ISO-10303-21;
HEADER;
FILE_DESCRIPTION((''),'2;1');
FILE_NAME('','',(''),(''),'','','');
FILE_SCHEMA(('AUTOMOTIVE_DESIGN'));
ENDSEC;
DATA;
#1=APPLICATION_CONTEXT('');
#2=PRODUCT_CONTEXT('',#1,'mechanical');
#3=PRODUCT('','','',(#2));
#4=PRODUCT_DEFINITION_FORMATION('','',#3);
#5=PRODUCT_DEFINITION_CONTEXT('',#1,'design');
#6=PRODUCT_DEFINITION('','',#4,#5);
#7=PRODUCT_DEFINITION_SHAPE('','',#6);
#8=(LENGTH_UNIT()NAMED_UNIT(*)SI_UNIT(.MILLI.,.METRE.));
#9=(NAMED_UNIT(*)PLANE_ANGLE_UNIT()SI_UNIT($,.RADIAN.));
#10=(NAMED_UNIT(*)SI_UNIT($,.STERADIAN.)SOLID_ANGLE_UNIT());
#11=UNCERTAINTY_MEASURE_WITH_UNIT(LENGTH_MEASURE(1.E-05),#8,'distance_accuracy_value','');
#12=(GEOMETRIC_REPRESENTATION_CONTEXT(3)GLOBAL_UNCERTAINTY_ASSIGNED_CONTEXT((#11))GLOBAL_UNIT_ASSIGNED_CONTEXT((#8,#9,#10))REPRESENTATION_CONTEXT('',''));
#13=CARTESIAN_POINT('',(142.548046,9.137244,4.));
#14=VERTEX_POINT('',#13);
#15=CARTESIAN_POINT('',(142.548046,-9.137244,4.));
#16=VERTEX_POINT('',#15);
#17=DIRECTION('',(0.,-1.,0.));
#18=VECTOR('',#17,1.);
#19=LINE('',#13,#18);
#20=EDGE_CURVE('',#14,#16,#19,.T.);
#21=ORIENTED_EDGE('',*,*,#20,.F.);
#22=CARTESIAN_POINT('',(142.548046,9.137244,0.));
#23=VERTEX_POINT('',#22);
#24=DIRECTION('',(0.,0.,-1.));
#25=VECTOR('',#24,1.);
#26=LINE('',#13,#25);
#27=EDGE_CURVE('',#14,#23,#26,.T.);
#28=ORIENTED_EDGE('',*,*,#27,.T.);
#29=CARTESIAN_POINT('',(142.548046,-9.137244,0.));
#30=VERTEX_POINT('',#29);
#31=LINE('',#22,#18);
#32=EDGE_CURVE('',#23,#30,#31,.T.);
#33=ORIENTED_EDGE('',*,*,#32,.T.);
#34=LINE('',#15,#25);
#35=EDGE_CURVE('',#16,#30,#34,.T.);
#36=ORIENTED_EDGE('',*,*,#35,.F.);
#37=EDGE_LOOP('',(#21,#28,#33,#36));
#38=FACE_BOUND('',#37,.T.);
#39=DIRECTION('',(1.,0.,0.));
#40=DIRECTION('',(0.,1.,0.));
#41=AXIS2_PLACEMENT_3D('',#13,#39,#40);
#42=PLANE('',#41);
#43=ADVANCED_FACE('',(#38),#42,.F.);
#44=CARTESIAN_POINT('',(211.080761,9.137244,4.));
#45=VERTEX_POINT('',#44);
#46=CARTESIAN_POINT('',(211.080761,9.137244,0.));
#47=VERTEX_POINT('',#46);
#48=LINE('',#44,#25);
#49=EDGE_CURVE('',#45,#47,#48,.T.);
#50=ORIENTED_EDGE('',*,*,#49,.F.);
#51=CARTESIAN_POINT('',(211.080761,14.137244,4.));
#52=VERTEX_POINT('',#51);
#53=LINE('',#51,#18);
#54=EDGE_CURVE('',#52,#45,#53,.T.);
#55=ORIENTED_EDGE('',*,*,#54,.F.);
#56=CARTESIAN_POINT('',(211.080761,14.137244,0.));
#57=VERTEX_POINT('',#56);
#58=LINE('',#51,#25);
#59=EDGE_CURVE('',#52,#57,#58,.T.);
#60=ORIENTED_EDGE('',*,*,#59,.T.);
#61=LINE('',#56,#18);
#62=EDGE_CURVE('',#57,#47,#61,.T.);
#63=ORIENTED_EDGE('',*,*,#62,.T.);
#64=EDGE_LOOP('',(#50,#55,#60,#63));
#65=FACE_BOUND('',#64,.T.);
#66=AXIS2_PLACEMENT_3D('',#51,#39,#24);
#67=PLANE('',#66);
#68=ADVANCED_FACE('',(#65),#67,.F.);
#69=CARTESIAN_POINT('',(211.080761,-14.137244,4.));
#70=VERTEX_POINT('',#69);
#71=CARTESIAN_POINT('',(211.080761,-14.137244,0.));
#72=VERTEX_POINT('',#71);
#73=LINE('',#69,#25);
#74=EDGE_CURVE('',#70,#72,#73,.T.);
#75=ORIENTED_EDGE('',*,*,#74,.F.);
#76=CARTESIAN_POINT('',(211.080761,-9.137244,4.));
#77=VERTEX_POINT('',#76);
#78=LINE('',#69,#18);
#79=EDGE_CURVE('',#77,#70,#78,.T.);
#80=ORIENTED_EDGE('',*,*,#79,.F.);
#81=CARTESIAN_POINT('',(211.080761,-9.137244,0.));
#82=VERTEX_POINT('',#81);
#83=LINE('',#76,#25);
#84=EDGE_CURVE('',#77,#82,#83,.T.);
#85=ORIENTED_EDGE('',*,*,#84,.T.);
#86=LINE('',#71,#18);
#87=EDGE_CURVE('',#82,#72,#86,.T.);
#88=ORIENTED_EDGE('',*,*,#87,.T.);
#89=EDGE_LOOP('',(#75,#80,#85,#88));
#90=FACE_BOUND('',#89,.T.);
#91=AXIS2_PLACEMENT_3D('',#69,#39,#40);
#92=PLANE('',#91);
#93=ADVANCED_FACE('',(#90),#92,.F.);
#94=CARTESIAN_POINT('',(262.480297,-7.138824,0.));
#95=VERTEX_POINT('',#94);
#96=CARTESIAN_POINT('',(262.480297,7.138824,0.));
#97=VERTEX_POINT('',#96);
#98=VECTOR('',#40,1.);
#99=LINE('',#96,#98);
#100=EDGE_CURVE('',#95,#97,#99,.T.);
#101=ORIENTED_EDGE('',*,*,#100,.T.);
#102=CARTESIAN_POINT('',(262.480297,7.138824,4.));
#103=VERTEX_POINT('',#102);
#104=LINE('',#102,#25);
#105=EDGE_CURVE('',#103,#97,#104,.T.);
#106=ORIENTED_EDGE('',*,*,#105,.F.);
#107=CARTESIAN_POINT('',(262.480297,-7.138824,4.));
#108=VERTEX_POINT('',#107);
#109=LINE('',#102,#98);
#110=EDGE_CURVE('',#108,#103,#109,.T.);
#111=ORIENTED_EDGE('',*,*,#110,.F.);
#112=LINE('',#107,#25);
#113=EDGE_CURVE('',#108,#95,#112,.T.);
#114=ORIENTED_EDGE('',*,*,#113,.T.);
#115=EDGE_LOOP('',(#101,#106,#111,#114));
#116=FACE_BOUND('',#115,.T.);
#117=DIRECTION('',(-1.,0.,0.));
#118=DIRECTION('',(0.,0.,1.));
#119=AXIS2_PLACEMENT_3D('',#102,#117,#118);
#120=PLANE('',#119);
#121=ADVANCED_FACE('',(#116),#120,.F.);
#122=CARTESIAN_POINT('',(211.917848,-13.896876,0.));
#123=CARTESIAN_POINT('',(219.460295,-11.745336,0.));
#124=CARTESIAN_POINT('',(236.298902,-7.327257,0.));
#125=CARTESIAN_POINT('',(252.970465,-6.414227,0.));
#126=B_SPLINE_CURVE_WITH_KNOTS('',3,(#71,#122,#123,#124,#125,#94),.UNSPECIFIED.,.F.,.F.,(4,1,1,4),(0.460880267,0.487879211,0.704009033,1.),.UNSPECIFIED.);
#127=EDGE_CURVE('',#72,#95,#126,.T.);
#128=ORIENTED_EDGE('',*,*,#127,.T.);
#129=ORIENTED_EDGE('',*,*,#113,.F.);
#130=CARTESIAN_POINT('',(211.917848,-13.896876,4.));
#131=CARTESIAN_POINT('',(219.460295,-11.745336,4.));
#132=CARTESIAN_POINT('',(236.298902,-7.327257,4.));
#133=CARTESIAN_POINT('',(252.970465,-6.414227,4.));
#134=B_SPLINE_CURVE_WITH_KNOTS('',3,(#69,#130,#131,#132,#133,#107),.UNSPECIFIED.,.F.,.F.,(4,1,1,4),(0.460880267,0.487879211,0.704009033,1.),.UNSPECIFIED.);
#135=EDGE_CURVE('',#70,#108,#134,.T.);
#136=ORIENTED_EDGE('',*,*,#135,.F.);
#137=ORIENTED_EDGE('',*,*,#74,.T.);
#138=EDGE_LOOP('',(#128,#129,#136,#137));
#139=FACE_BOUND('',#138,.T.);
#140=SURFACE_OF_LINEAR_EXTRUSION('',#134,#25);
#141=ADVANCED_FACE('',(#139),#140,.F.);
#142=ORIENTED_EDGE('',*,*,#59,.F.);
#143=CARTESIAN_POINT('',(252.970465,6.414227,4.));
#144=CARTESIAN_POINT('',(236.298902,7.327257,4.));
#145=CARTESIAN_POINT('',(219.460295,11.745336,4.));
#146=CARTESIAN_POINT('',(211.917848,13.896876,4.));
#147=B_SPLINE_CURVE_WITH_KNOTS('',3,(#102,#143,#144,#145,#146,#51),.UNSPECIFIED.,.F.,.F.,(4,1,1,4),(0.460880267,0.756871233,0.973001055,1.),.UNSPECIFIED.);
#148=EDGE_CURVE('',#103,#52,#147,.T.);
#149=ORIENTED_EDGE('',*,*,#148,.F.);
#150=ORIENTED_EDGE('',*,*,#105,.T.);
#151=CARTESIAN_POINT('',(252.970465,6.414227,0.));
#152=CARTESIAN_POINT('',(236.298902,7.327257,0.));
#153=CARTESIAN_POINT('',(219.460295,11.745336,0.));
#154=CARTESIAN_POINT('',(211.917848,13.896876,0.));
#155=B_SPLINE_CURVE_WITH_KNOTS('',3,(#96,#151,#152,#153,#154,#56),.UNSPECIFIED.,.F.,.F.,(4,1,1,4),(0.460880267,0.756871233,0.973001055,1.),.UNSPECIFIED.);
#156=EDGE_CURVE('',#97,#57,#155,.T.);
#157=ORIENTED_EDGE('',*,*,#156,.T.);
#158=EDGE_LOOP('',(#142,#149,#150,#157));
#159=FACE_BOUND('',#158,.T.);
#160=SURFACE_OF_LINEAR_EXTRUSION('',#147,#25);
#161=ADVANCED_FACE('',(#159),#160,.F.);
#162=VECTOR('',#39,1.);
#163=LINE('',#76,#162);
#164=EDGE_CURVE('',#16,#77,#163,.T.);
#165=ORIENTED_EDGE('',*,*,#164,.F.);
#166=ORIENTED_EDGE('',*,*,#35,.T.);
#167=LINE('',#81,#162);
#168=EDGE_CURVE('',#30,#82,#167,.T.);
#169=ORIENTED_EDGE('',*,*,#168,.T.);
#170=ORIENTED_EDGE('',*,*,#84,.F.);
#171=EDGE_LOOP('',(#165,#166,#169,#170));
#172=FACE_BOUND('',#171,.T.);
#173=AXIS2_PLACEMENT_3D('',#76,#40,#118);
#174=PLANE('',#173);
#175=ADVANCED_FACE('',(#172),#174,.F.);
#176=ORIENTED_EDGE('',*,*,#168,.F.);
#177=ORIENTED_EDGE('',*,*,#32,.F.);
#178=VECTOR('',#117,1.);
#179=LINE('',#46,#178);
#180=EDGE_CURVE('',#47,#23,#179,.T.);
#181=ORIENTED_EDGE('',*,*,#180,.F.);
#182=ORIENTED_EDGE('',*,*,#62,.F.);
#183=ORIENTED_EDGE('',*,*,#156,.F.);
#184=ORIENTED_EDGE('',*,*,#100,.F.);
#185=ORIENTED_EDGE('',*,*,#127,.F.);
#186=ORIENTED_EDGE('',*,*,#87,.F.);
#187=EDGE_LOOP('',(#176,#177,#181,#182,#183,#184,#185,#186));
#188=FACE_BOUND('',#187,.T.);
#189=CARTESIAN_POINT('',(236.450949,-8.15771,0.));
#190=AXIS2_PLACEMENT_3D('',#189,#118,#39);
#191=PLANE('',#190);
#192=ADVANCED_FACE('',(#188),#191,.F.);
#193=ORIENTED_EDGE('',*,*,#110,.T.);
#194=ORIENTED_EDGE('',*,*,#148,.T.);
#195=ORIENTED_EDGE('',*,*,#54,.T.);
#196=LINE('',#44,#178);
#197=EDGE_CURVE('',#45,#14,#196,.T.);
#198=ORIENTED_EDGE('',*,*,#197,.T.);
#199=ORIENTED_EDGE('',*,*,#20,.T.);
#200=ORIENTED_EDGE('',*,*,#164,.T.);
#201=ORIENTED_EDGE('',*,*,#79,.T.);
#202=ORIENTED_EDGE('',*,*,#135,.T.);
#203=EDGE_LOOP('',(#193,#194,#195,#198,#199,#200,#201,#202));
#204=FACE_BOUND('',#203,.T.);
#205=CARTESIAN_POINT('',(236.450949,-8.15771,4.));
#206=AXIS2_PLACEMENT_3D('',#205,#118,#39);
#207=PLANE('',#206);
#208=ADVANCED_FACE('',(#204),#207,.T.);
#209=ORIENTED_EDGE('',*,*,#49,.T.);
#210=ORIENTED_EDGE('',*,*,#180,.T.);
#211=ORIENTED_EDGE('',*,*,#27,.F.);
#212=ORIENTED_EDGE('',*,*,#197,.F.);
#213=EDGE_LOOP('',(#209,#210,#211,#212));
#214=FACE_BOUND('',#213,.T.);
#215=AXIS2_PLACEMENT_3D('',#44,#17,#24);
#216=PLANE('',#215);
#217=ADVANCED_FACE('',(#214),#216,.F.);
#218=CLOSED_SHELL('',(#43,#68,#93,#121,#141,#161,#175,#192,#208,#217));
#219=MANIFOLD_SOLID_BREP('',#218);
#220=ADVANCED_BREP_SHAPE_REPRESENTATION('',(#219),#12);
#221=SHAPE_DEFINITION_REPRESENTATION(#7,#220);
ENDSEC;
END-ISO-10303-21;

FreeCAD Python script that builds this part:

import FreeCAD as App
import Part
import Sketcher

doc = App.newDocument("Part")
body = doc.addObject("PartDesign::Body", "Body")

# Sketch on XY plane
sketch1 = body.newObject("Sketcher::SketchObject", "Sketch")
sketch1.AttachmentSupport = (doc.getObject("XY_Plane"), [""])
sketch1.MapMode = "FlatFace"
sketch1.addGeometry([
    Part.LineSegment(App.Vector(262.480297, -7.138824, 0), App.Vector(262.480297, 7.138824, 0)),  # 0
    Part.BSplineCurve([App.Vector(211.080761, 14.137244, 0), App.Vector(211.917848, 13.896876, 0), App.Vector(219.460295, 11.745336, 0), App.Vector(236.298902, 7.327257, 0), App.Vector(252.970465, 6.414227, 0), App.Vector(262.480297, 7.138824, 0)], [4, 1, 1, 4], [0.460880267, 0.487879211, 0.704009033, 1], False, 3, [1, 1, 1, 1, 1, 1], False),  # 1
    Part.LineSegment(App.Vector(211.080761, 14.137244, 0), App.Vector(211.080761, 9.137244, 0)),  # 2
    Part.LineSegment(App.Vector(211.080761, 9.137244, 0), App.Vector(142.548046, 9.137244, 0)),  # 3
    Part.LineSegment(App.Vector(142.548046, 9.137244, 0), App.Vector(142.548046, -9.137244, 0)),  # 4
    Part.LineSegment(App.Vector(142.548046, -9.137244, 0), App.Vector(211.080761, -9.137244, 0)),  # 5
    Part.LineSegment(App.Vector(211.080761, -9.137244, 0), App.Vector(211.080761, -14.137244, 0)),  # 6
    Part.BSplineCurve([App.Vector(211.080761, -14.137244, 0), App.Vector(211.917848, -13.896876, 0), App.Vector(219.460295, -11.745336, 0), App.Vector(236.298902, -7.327257, 0), App.Vector(252.970465, -6.414227, 0), App.Vector(262.480297, -7.138824, 0)], [4, 1, 1, 4], [0.460880267, 0.487879211, 0.704009033, 1], False, 3, [1, 1, 1, 1, 1, 1], False),  # 7
], False)
sketch1.addConstraint([
    Sketcher.Constraint("Block", 1),
    Sketcher.Constraint("Block", 7),
    Sketcher.Constraint("Coincident", 0, 2, 1, 2),
    Sketcher.Constraint("Coincident", 1, 1, 2, 1),
    Sketcher.Constraint("Coincident", 2, 2, 3, 1),
    Sketcher.Constraint("Coincident", 3, 2, 4, 1),
    Sketcher.Constraint("Coincident", 4, 2, 5, 1),
    Sketcher.Constraint("Coincident", 5, 2, 6, 1),
    Sketcher.Constraint("Coincident", 6, 2, 7, 1),
    Sketcher.Constraint("Coincident", 7, 2, 0, 1),
    Sketcher.Constraint("Vertical", 2),
    Sketcher.Constraint("Horizontal", 3),
    Sketcher.Constraint("Vertical", 4),
    Sketcher.Constraint("Horizontal", 5),
    Sketcher.Constraint("Vertical", 6),
    Sketcher.Constraint("Equal", 2, 6),
    Sketcher.Constraint("DistanceY", 2, 2, 2, 1, 5.0),
    Sketcher.Constraint("DistanceX", 3, 2, 3, 1, 68.532715),
])
pad1 = body.newObject("PartDesign::Pad", "Pad")
pad1.Profile = sketch1
pad1.Length = 4

doc.recompute()
